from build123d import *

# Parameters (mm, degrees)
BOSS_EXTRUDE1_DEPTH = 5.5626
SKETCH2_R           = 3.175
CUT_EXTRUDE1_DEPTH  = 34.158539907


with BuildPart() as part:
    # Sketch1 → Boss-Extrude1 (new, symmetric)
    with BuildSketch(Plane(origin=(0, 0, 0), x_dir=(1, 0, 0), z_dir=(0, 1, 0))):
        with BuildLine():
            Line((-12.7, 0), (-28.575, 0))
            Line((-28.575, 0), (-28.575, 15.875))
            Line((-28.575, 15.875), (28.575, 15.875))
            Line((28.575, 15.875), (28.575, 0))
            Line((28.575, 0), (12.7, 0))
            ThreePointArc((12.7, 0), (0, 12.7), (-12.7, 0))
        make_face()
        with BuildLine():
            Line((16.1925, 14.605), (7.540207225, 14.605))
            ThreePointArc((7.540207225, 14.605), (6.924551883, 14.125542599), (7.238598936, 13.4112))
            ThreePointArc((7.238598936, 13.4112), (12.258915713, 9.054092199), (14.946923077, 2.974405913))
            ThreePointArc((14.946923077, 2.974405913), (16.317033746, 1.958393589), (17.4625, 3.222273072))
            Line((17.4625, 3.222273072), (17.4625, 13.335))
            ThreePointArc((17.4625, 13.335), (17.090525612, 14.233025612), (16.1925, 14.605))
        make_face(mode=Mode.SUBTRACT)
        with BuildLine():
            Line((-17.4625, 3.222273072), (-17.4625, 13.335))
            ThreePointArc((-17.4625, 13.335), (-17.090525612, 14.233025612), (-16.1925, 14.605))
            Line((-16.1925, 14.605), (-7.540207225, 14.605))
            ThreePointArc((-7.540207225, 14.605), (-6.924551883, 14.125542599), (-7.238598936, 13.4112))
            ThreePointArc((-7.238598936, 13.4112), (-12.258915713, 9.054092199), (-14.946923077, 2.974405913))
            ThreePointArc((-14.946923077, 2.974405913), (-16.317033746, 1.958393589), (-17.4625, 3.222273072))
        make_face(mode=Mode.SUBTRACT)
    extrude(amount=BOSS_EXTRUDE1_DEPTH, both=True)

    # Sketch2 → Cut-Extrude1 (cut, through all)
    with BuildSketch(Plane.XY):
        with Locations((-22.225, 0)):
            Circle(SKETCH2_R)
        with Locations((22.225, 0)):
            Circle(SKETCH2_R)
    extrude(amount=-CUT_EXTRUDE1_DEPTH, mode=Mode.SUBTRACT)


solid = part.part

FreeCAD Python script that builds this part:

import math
import FreeCAD as App
import Part
import Sketcher
Q = App.Units.Quantity

doc = App.newDocument("Part")
body = doc.addObject("PartDesign::Body", "Body")

# Sketch on XZ plane
sketch1 = body.newObject("Sketcher::SketchObject", "Sketch")
sketch1.AttachmentSupport = (doc.getObject("XZ_Plane"), [""])
sketch1.MapMode = "FlatFace"
sketch1.addGeometry([
    Part.LineSegment(App.Vector(-28.6, 0, 0), App.Vector(-12.7, 0, 0)),  # 0
    Part.ArcOfCircle(Part.Circle(App.Vector(0, 0, 0), App.Vector(0, 0, 1), 12.7), math.radians(180), math.radians(360)),  # 1
    Part.LineSegment(App.Vector(12.7, 0, 0), App.Vector(28.6, 0, 0)),  # 2
    Part.LineSegment(App.Vector(28.6, 0, 0), App.Vector(28.6, -15.9, 0)),  # 3
    Part.LineSegment(App.Vector(28.6, -15.9, 0), App.Vector(-28.6, -15.9, 0)),  # 4
    Part.LineSegment(App.Vector(-28.6, -15.9, 0), App.Vector(-28.6, 0, 0)),  # 5
    Part.ArcOfCircle(Part.Circle(App.Vector(16.2, -13.3, 0), App.Vector(0, 0, 1), 1.3), math.radians(-90), math.radians(0)),  # 6
    Part.LineSegment(App.Vector(17.5, -13.3, 0), App.Vector(17.5, -3.2, 0)),  # 7
    Part.ArcOfCircle(Part.Circle(App.Vector(16.2, -3.2, 0), App.Vector(0, 0, 1), 1.3), math.radians(0), math.radians(169)),  # 8
    Part.ArcOfCircle(Part.Circle(App.Vector(0, 0, 0), App.Vector(0, 0, 1), 15.2), math.radians(-62), math.radians(-11)),  # 9
    Part.ArcOfCircle(Part.Circle(App.Vector(7.5, -14, 0), App.Vector(0, 0, 1), 0.6), math.radians(118), math.radians(270)),  # 10
    Part.LineSegment(App.Vector(7.5, -14.6, 0), App.Vector(16.2, -14.6, 0)),  # 11
    Part.LineSegment(App.Vector(-17.5, -3.2, 0), App.Vector(-17.5, -13.3, 0)),  # 12
    Part.ArcOfCircle(Part.Circle(App.Vector(-16.2, -13.3, 0), App.Vector(0, 0, 1), 1.3), math.radians(180), math.radians(270)),  # 13
    Part.LineSegment(App.Vector(-16.2, -14.6, 0), App.Vector(-7.5, -14.6, 0)),  # 14
    Part.ArcOfCircle(Part.Circle(App.Vector(-7.5, -14, 0), App.Vector(0, 0, 1), 0.6), math.radians(-90), math.radians(62)),  # 15
    Part.ArcOfCircle(Part.Circle(App.Vector(0, 0, 0), App.Vector(0, 0, 1), 15.2), math.radians(-169), math.radians(-118)),  # 16
    Part.ArcOfCircle(Part.Circle(App.Vector(-16.2, -3.2, 0), App.Vector(0, 0, 1), 1.3), math.radians(11), math.radians(180)),  # 17
], False)
sketch1.addConstraint([
    Sketcher.Constraint("Coincident", 0, 2, 1, 1),
    Sketcher.Constraint("Coincident", 1, 2, 2, 1),
    Sketcher.Constraint("Coincident", 2, 2, 3, 1),
    Sketcher.Constraint("Coincident", 3, 2, 4, 1),
    Sketcher.Constraint("Coincident", 4, 2, 5, 1),
    Sketcher.Constraint("Coincident", 5, 2, 0, 1),
    Sketcher.Constraint("Tangent", 6, 2, 7, 1),
    Sketcher.Constraint("Tangent", 7, 2, 8, 1),
    Sketcher.Constraint("Tangent", 8, 2, 9, 2),
    Sketcher.Constraint("Tangent", 9, 1, 10, 1),
    Sketcher.Constraint("Tangent", 10, 2, 11, 1),
    Sketcher.Constraint("Tangent", 11, 2, 6, 1),
    Sketcher.Constraint("Tangent", 12, 2, 13, 1),
    Sketcher.Constraint("Tangent", 13, 2, 14, 1),
    Sketcher.Constraint("Tangent", 14, 2, 15, 1),
    Sketcher.Constraint("Tangent", 15, 2, 16, 2),
    Sketcher.Constraint("Tangent", 16, 1, 17, 1),
    Sketcher.Constraint("Tangent", 17, 2, 12, 1),
    Sketcher.Constraint("Horizontal", 0),
    Sketcher.Constraint("Horizontal", 2),
    Sketcher.Constraint("Vertical", 3),
    Sketcher.Constraint("Horizontal", 4),
    Sketcher.Constraint("Vertical", 5),
    Sketcher.Constraint("Vertical", 7),
    Sketcher.Constraint("Horizontal", 11),
    Sketcher.Constraint("Vertical", 12),
    Sketcher.Constraint("Horizontal", 14),
    Sketcher.Constraint("Coincident", 1, 3, -1, 1),
    Sketcher.Constraint("Coincident", 9, 3, -1, 1),
    Sketcher.Constraint("Coincident", 16, 3, -1, 1),
    Sketcher.Constraint("Equal", 6, 8),
    Sketcher.Constraint("Equal", 8, 13),
    Sketcher.Constraint("Equal", 10, 15),
    Sketcher.Constraint("Equal", 9, 16),
    Sketcher.Constraint("Equal", 13, 17),
    Sketcher.Constraint("Symmetric", 2, 2, 5, 2, -1, 1),
    Sketcher.Constraint("Symmetric", 6, 3, 13, 3, -2),
    Sketcher.Constraint("PointOnObject", 0, 2, -1),
    Sketcher.Constraint("Equal", 2, 3),
    Sketcher.Constraint("Radius", 1, Q("0.5 in")),
    Sketcher.Constraint("Radius", 9, Q("0.6 in")),
    Sketcher.Constraint("Radius", 6, Q("0.05 in")),
    Sketcher.Constraint("Radius", 10, Q("0.025 in")),
    Sketcher.Constraint("DistanceX", 4, 2, 4, 1, Q("2.25 in")),
    Sketcher.Constraint("DistanceY", 3, 2, 6, 3, Q("0.1 in")),
    Sketcher.Constraint("DistanceX", -1, 1, 6, 2, Q("0.6875 in")),
])
pad1 = body.newObject("PartDesign::Pad", "Pad")
pad1.Profile = sketch1
pad1.Length = Q("0.438 in")
pad1.Midplane = True

# Sketch on XY plane
sketch2 = body.newObject("Sketcher::SketchObject", "Sketch001")
sketch2.AttachmentSupport = (doc.getObject("XY_Plane"), [""])
sketch2.MapMode = "FlatFace"
sketch2.addGeometry([
    Part.Circle(App.Vector(-22.2, 0, 0), App.Vector(0, 0, 1), 3.2),
    Part.Circle(App.Vector(22.2, 0, 0), App.Vector(0, 0, 1), 3.2),
], False)
sketch2.addConstraint([
    Sketcher.Constraint("Equal", 0, 1),
    Sketcher.Constraint("Symmetric", 0, 3, 1, 3, -1, 1),
    Sketcher.Constraint("PointOnObject", 0, 3, -1),
    Sketcher.Constraint("Diameter", 0, Q("0.25 in")),
    Sketcher.Constraint("DistanceX", 0, 3, 1, 3, Q("1.75 in")),
])
pocket1 = body.newObject("PartDesign::Pocket", "Pocket")
pocket1.Profile = sketch2
pocket1.Type = "ThroughAll"

doc.recompute()
